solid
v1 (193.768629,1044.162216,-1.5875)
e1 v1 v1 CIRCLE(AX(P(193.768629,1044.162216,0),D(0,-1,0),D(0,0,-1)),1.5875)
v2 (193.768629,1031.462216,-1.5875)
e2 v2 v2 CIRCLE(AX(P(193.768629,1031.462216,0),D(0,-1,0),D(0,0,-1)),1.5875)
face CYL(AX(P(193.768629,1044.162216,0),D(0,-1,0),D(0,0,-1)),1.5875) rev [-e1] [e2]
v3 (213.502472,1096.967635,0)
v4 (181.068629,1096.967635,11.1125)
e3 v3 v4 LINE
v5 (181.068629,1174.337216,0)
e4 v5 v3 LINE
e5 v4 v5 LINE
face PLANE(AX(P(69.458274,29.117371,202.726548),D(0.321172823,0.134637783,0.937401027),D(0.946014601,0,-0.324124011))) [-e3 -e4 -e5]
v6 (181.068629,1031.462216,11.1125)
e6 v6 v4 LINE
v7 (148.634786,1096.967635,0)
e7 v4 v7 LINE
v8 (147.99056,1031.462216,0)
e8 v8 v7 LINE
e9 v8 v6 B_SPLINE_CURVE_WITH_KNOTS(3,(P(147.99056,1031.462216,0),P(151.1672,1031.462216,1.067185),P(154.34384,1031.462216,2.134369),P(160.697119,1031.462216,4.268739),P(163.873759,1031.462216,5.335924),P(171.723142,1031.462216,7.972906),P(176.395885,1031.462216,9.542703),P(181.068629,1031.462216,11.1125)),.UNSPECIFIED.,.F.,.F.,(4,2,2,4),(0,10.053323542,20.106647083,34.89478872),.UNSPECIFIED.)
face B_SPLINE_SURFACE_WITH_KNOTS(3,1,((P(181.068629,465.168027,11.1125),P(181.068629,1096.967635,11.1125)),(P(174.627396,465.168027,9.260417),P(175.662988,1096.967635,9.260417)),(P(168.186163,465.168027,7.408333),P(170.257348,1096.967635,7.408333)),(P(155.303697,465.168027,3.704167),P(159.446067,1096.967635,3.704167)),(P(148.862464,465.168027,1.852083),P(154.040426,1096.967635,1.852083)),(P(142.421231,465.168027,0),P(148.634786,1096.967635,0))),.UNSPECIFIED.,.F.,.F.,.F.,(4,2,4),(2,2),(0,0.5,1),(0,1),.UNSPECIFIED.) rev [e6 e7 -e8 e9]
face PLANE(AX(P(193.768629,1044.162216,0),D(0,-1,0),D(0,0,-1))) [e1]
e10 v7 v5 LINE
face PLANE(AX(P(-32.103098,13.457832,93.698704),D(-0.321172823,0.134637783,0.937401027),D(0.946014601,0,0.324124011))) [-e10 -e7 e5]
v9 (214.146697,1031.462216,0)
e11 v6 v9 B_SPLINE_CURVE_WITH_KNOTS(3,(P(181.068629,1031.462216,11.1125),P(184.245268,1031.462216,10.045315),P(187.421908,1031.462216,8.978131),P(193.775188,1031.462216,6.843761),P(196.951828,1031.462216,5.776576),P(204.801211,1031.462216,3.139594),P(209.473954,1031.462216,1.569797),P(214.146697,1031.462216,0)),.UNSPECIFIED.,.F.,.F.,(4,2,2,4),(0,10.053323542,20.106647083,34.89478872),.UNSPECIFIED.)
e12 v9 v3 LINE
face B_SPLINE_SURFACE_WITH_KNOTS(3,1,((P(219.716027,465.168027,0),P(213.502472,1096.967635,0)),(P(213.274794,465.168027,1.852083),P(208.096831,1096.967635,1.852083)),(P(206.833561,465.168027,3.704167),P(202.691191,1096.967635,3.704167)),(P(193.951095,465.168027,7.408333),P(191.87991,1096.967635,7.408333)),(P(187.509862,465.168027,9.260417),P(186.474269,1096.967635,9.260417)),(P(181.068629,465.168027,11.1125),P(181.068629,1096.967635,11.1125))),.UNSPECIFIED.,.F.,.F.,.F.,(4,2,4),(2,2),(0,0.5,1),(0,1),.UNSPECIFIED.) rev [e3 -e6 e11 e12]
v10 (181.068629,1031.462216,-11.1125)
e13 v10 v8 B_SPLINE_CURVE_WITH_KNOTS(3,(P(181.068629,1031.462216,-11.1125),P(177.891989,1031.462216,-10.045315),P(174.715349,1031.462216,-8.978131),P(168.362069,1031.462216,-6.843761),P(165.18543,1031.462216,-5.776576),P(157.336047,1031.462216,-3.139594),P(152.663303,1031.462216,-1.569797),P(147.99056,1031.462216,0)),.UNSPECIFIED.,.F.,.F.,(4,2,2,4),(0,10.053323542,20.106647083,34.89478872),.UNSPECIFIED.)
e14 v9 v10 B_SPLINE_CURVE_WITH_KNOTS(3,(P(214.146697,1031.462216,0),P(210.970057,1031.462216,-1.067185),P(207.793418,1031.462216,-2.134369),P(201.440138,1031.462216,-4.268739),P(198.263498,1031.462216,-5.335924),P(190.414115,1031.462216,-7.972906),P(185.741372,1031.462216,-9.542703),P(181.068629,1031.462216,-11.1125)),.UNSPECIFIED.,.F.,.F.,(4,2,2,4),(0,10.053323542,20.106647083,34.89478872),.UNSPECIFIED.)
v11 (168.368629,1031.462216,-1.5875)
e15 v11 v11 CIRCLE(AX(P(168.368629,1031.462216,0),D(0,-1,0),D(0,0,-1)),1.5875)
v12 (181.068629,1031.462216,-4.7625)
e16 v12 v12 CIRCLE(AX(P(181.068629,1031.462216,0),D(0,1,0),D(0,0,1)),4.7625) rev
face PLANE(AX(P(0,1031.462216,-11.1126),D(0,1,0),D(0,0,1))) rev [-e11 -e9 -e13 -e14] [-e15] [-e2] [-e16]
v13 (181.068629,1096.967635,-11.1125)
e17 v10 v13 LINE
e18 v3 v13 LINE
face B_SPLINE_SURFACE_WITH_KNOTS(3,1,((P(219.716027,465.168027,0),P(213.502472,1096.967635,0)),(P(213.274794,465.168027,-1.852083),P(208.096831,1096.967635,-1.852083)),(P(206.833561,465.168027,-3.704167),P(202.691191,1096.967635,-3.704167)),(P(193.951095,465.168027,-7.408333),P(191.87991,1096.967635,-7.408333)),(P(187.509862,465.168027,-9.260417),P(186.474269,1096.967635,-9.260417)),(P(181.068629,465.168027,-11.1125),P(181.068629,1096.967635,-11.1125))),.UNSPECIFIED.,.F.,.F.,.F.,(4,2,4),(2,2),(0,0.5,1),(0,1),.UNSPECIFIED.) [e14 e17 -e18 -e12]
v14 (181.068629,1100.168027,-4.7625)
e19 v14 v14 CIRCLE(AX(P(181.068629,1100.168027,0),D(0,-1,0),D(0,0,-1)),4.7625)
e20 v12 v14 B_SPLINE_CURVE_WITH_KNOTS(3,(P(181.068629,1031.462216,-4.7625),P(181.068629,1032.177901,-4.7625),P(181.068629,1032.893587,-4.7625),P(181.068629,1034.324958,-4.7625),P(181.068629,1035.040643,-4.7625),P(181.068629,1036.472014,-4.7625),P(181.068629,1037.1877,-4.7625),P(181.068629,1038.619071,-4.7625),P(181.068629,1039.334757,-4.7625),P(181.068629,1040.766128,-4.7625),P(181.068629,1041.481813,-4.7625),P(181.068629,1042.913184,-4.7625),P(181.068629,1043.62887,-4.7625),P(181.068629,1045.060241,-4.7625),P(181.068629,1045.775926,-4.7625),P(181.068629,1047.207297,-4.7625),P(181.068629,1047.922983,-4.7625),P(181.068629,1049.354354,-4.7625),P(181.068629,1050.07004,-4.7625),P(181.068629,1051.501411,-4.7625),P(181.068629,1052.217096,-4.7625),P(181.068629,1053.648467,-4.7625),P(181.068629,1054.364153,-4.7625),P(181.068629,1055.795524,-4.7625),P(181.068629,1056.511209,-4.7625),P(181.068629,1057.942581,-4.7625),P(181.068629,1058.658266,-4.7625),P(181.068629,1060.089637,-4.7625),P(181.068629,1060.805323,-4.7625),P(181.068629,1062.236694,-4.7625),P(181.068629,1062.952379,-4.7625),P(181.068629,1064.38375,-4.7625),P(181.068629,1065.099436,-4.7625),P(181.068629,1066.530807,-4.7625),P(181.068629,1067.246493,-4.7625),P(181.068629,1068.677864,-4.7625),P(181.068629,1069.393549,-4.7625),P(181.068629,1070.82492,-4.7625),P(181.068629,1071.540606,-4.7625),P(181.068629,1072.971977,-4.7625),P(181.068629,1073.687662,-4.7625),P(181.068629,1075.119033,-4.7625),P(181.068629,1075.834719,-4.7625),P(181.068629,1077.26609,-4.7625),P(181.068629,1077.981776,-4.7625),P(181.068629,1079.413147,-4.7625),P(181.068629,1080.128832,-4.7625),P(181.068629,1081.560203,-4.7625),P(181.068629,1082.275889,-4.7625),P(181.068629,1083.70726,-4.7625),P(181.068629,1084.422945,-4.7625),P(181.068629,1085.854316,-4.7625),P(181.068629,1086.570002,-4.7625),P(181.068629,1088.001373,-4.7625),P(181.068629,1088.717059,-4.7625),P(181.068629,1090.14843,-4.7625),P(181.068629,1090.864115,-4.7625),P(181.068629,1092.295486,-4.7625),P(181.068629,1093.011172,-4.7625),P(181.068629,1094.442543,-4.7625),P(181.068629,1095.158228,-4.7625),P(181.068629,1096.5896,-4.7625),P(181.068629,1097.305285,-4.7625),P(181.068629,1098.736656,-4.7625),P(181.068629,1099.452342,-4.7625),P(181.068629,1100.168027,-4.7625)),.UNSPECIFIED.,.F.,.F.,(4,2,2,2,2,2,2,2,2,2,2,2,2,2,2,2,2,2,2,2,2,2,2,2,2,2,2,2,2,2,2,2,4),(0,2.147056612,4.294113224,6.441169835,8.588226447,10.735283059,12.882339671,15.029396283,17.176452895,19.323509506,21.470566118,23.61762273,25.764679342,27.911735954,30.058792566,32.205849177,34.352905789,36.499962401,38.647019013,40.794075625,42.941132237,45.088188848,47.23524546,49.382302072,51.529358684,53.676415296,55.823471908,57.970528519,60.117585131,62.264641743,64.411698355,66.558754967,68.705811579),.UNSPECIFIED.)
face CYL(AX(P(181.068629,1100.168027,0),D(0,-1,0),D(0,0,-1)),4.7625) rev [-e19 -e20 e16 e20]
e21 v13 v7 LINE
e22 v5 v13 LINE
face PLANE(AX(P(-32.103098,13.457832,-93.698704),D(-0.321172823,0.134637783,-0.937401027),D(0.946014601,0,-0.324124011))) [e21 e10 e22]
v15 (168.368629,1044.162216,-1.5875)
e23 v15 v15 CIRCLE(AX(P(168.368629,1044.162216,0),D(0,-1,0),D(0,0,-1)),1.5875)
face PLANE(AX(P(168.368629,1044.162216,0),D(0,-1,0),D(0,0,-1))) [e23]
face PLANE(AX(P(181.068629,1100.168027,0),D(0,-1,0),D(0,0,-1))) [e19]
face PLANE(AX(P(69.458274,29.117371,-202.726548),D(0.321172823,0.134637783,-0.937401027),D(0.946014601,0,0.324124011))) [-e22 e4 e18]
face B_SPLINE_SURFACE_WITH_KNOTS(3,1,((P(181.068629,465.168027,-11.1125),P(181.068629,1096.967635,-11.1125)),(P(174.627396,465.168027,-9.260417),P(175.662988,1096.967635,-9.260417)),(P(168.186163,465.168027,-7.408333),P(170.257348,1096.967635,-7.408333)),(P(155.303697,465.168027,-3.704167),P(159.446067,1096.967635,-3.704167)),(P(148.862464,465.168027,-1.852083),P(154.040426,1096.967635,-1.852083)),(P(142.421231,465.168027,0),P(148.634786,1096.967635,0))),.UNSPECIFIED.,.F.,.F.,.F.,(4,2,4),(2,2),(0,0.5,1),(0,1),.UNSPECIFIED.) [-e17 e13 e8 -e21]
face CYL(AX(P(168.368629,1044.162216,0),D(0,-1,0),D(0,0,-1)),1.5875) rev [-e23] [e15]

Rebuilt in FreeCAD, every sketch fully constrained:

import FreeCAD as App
import Part
import Sketcher
from FreeCAD import Vector
Q = App.Units.Quantity

doc = App.newDocument("Part")
body = doc.addObject("PartDesign::Body", "Body")

# Sketch on XY plane
sketch1 = body.newObject("Sketcher::SketchObject", "Sketch")
sketch1.AttachmentSupport = (doc.getObject("XY_Plane"), [""])
sketch1.MapMode = "FlatFace"
sketch1.addGeometry(Part.LineSegment(Vector(142, 465, 0), Vector(220, 465, 0)), False)
sketch1.addGeometry(Part.LineSegment(Vector(220, 465, 0), Vector(214, 1097, 0)), False)
sketch1.addGeometry(Part.LineSegment(Vector(214, 1097, 0), Vector(181, 1174, 0)), False)
sketch1.addGeometry(Part.LineSegment(Vector(181, 1174, 0), Vector(149, 1097, 0)), False)
sketch1.addGeometry(Part.LineSegment(Vector(149, 1097, 0), Vector(142, 465, 0)), False)
sketch1.addConstraint(Sketcher.Constraint("Coincident", 0, 2, 1, 1))
sketch1.addConstraint(Sketcher.Constraint("Coincident", 1, 2, 2, 1))
sketch1.addConstraint(Sketcher.Constraint("Coincident", 2, 2, 3, 1))
sketch1.addConstraint(Sketcher.Constraint("Coincident", 3, 2, 4, 1))
sketch1.addConstraint(Sketcher.Constraint("Coincident", 4, 2, 0, 1))
sketch1.addConstraint(Sketcher.Constraint("Horizontal", 0))
sketch1.addConstraint(Sketcher.Constraint("Horizontal", 1, 2, 3, 2))
sketch1.addConstraint(Sketcher.Constraint("Equal", 2, 3))
sketch1.addConstraint(Sketcher.Constraint("Equal", 1, 4))
sketch1.addConstraint(Sketcher.Constraint("Distance", 1, 631.830161))
sketch1.addConstraint(Sketcher.Constraint("DistanceX", 0, 1, 0, 2, 77.294796))
sketch1.addConstraint(Sketcher.Constraint("DistanceX", -1, 1, 1, 2, 213.502472))
sketch1.addConstraint(Sketcher.Constraint("DistanceX", -1, 1, 2, 2, 181.068629))
sketch1.addConstraint(Sketcher.Constraint("DistanceY", 1, 2, 2, 2, 77.369581))
sketch1.addConstraint(Sketcher.Constraint("DistanceY", -1, 1, 0, 2, 465.168027))
pad1 = body.newObject("PartDesign::Pad", "Pad")
pad1.Profile = sketch1
pad1.Type = "TwoLengths"
pad1.Length = Q("0.4375 in")
pad1.Length2 = Q("0.4375 in")

# Sketch on XZ plane
sketch2 = body.newObject("Sketcher::SketchObject", "Sketch001")
sketch2.AttachmentSupport = (doc.getObject("XZ_Plane"), [""])
sketch2.MapMode = "FlatFace"
sketch2.AttachmentOffset = App.Placement(Vector(0, 0, -465.168027), App.Rotation())
sketch2.addGeometry(Part.LineSegment(Vector(142.4, 0, 0), Vector(181.1, 11.1, 0)), False)
sketch2.addGeometry(Part.LineSegment(Vector(181.1, 11.1, 0), Vector(219.7, 0, 0)), False)
sketch2.addGeometry(Part.LineSegment(Vector(219.7, 0, 0), Vector(222.7, 0, 0)), False)
sketch2.addGeometry(Part.LineSegment(Vector(222.7, 0, 0), Vector(222.7, 15.3, 0)), False)
sketch2.addGeometry(Part.LineSegment(Vector(222.7, 15.3, 0), Vector(137.8, 15.3, 0)), False)
sketch2.addGeometry(Part.LineSegment(Vector(137.8, 15.3, 0), Vector(137.8, 0, 0)), False)
sketch2.addGeometry(Part.LineSegment(Vector(137.8, 0, 0), Vector(142.4, 0, 0)), False)
sketch2.addConstraint(Sketcher.Constraint("Coincident", 0, 2, 1, 1))
sketch2.addConstraint(Sketcher.Constraint("Coincident", 1, 2, 2, 1))
sketch2.addConstraint(Sketcher.Constraint("Coincident", 2, 2, 3, 1))
sketch2.addConstraint(Sketcher.Constraint("Coincident", 3, 2, 4, 1))
sketch2.addConstraint(Sketcher.Constraint("Coincident", 4, 2, 5, 1))
sketch2.addConstraint(Sketcher.Constraint("Coincident", 5, 2, 6, 1))
sketch2.addConstraint(Sketcher.Constraint("Coincident", 6, 2, 0, 1))
sketch2.addConstraint(Sketcher.Constraint("Horizontal", 2))
sketch2.addConstraint(Sketcher.Constraint("Vertical", 3))
sketch2.addConstraint(Sketcher.Constraint("Horizontal", 4))
sketch2.addConstraint(Sketcher.Constraint("Vertical", 5))
sketch2.addConstraint(Sketcher.Constraint("Horizontal", 6))
sketch2.addConstraint(Sketcher.Constraint("PointOnObject", 1, 2, -1))
sketch2.addConstraint(Sketcher.Constraint("PointOnObject", 5, 2, -1))
sketch2.addConstraint(Sketcher.Constraint("Equal", 0, 1))
sketch2.addConstraint(Sketcher.Constraint("DistanceY", -1, 1, 0, 2, Q("0.4375 in")))
sketch2.addConstraint(Sketcher.Constraint("DistanceX", 2, 1, 2, 2, 2.989111))
sketch2.addConstraint(Sketcher.Constraint("DistanceX", 4, 2, 4, 1, 84.85651))
sketch2.addConstraint(Sketcher.Constraint("DistanceX", 4, 2, 0, 2, 43.22))
sketch2.addConstraint(Sketcher.Constraint("DistanceY", 3, 1, 3, 2, 15.258366))
sketch2.addConstraint(Sketcher.Constraint("DistanceX", -1, 1, 0, 2, 181.068629))

# Sketch on XZ plane
sketch3 = body.newObject("Sketcher::SketchObject", "Sketch002")
sketch3.AttachmentSupport = (doc.getObject("XZ_Plane"), [""])
sketch3.MapMode = "FlatFace"
sketch3.AttachmentOffset = App.Placement(Vector(0, 0, -1096.967635), App.Rotation())
sketch3.addGeometry(Part.LineSegment(Vector(214, 0, 0), Vector(181, 11, 0)), False)
sketch3.addGeometry(Part.LineSegment(Vector(181, 11, 0), Vector(149, 0, 0)), False)
sketch3.addGeometry(Part.LineSegment(Vector(149, 0, 0), Vector(138, 0, 0)), False)
sketch3.addGeometry(Part.LineSegment(Vector(138, 0, 0), Vector(138, 15, 0)), False)
sketch3.addGeometry(Part.LineSegment(Vector(138, 15, 0), Vector(223, 15, 0)), False)
sketch3.addGeometry(Part.LineSegment(Vector(223, 15, 0), Vector(223, 0, 0)), False)
sketch3.addGeometry(Part.LineSegment(Vector(223, 0, 0), Vector(214, 0, 0)), False)
sketch3.addConstraint(Sketcher.Constraint("Coincident", 0, 2, 1, 1))
sketch3.addConstraint(Sketcher.Constraint("Coincident", 1, 2, 2, 1))
sketch3.addConstraint(Sketcher.Constraint("Coincident", 2, 2, 3, 1))
sketch3.addConstraint(Sketcher.Constraint("Coincident", 3, 2, 4, 1))
sketch3.addConstraint(Sketcher.Constraint("Coincident", 4, 2, 5, 1))
sketch3.addConstraint(Sketcher.Constraint("Coincident", 5, 2, 6, 1))
sketch3.addConstraint(Sketcher.Constraint("Coincident", 6, 2, 0, 1))
sketch3.addConstraint(Sketcher.Constraint("Horizontal", 2))
sketch3.addConstraint(Sketcher.Constraint("Vertical", 3))
sketch3.addConstraint(Sketcher.Constraint("Horizontal", 4))
sketch3.addConstraint(Sketcher.Constraint("Vertical", 5))
sketch3.addConstraint(Sketcher.Constraint("Horizontal", 6))
sketch3.addConstraint(Sketcher.Constraint("PointOnObject", 1, 2, -1))
sketch3.addConstraint(Sketcher.Constraint("PointOnObject", 5, 2, -1))
sketch3.addConstraint(Sketcher.Constraint("Equal", 0, 1))
sketch3.addConstraint(Sketcher.Constraint("DistanceY", -1, 1, 0, 2, Q("0.4375 in")))
sketch3.addConstraint(Sketcher.Constraint("DistanceX", 4, 1, 4, 2, 84.85651))
sketch3.addConstraint(Sketcher.Constraint("DistanceX", 2, 2, 0, 2, 43.22))
sketch3.addConstraint(Sketcher.Constraint("DistanceX", 2, 2, 2, 1, 10.786158))
sketch3.addConstraint(Sketcher.Constraint("DistanceY", 3, 1, 3, 2, 15.258366))
sketch3.addConstraint(Sketcher.Constraint("DistanceX", -1, 1, 0, 2, 181.068629))

subtractiveloft = body.newObject("PartDesign::SubtractiveLoft", "SubtractiveLoft")
subtractiveloft.Profile = sketch2
subtractiveloft.Sections = [sketch3]
doc.recompute()

mirrored = body.newObject("PartDesign::Mirrored", "Mirrored")
mirrored.Originals = [subtractiveloft]
mirrored.MirrorPlane = (doc.getObject("XY_Plane"), [""])
body.Tip = mirrored

# Sketch on an angled plane
sketch4 = body.newObject("Sketcher::SketchObject", "Sketch003")
sketch4.Placement = App.Placement(Vector(-32.103098, 13.457832, 93.698704), App.Rotation(Vector(0.9470206, 0.045661094, 0.317910438), Vector(0, 0.989842276, -0.142169857), Vector(-0.321172823, 0.134637783, 0.937401027), "ZXY"))
sketch4.addGeometry(Part.LineSegment(Vector(164, 1281, 0), Vector(164, 998, 0)), False)
sketch4.addGeometry(Part.LineSegment(Vector(164, 998, 0), Vector(274, 998, 0)), False)
sketch4.addGeometry(Part.LineSegment(Vector(274, 998, 0), Vector(274, 1281, 0)), False)
sketch4.addGeometry(Part.LineSegment(Vector(274, 1281, 0), Vector(164, 1281, 0)), False)
sketch4.addConstraint(Sketcher.Constraint("Coincident", 0, 2, 1, 1))
sketch4.addConstraint(Sketcher.Constraint("Coincident", 1, 2, 2, 1))
sketch4.addConstraint(Sketcher.Constraint("Coincident", 2, 2, 3, 1))
sketch4.addConstraint(Sketcher.Constraint("Coincident", 3, 2, 0, 1))
sketch4.addConstraint(Sketcher.Constraint("Vertical", 0))
sketch4.addConstraint(Sketcher.Constraint("Horizontal", 1))
sketch4.addConstraint(Sketcher.Constraint("Vertical", 2))
sketch4.addConstraint(Sketcher.Constraint("Horizontal", 3))
sketch4.addConstraint(Sketcher.Constraint("DistanceX", 1, 1, 1, 2, 109.877469))
sketch4.addConstraint(Sketcher.Constraint("DistanceY", 0, 2, 0, 1, 283.051122))
sketch4.addConstraint(Sketcher.Constraint("DistanceX", -1, 1, 0, 2, 164.41051))
sketch4.addConstraint(Sketcher.Constraint("DistanceY", -1, 1, 0, 2, 997.778163))
pocket1 = body.newObject("PartDesign::Pocket", "Pocket")
pocket1.Profile = sketch4
pocket1.Type = "ThroughAll"
pocket1.Reversed = True

# Sketch on an angled plane
sketch5 = body.newObject("Sketcher::SketchObject", "Sketch004")
sketch5.Placement = App.Placement(Vector(69.458274, 29.117371, 202.726548), App.Rotation(Vector(0.9470206, -0.045661094, -0.317910438), Vector(0, 0.989842276, -0.142169857), Vector(0.321172823, 0.134637783, 0.937401027), "ZXY"))
sketch5.addGeometry(Part.LineSegment(Vector(57, 1173, 0), Vector(57, 1064, 0)), False)
sketch5.addGeometry(Part.LineSegment(Vector(57, 1064, 0), Vector(206, 1064, 0)), False)
sketch5.addGeometry(Part.LineSegment(Vector(206, 1064, 0), Vector(206, 1173, 0)), False)
sketch5.addGeometry(Part.LineSegment(Vector(206, 1173, 0), Vector(57, 1173, 0)), False)
sketch5.addConstraint(Sketcher.Constraint("Coincident", 0, 2, 1, 1))
sketch5.addConstraint(Sketcher.Constraint("Coincident", 1, 2, 2, 1))
sketch5.addConstraint(Sketcher.Constraint("Coincident", 2, 2, 3, 1))
sketch5.addConstraint(Sketcher.Constraint("Coincident", 3, 2, 0, 1))
sketch5.addConstraint(Sketcher.Constraint("Vertical", 0))
sketch5.addConstraint(Sketcher.Constraint("Horizontal", 1))
sketch5.addConstraint(Sketcher.Constraint("Vertical", 2))
sketch5.addConstraint(Sketcher.Constraint("Horizontal", 3))
sketch5.addConstraint(Sketcher.Constraint("DistanceY", 0, 2, 0, 1, 108.921762))
sketch5.addConstraint(Sketcher.Constraint("DistanceX", 1, 1, 1, 2, 149.121483))
sketch5.addConstraint(Sketcher.Constraint("DistanceY", -1, 1, 0, 2, 1064.46137))
sketch5.addConstraint(Sketcher.Constraint("DistanceX", -1, 1, 1, 2, 206.313558))
pocket2 = body.newObject("PartDesign::Pocket", "Pocket001")
pocket2.Profile = sketch5
pocket2.Type = "ThroughAll"
pocket2.Reversed = True
doc.recompute()

mirrored2 = body.newObject("PartDesign::Mirrored", "Mirrored001")
mirrored2.Originals = [pocket1, pocket2]
mirrored2.MirrorPlane = (doc.getObject("XY_Plane"), [""])
body.Tip = mirrored2

# Sketch on XZ plane
sketch6 = body.newObject("Sketcher::SketchObject", "Sketch005")
sketch6.AttachmentSupport = (doc.getObject("XZ_Plane"), [""])
sketch6.MapMode = "FlatFace"
sketch6.AttachmentOffset = App.Placement(Vector(0, 0, -465.168027), App.Rotation())
sketch6.addGeometry(Part.Circle(Vector(181.1, 0, 0), Vector(0, 0, 1), 4.8), False)
sketch6.addConstraint(Sketcher.Constraint("PointOnObject", 0, 3, -1))
sketch6.addConstraint(Sketcher.Constraint("Diameter", 0, Q("0.375 in")))
sketch6.addConstraint(Sketcher.Constraint("DistanceX", -1, 1, 0, 3, 181.068629))
pocket3 = body.newObject("PartDesign::Pocket", "Pocket002")
pocket3.Profile = sketch6
pocket3.Length = Q("25 in")

# Sketch on XY plane
sketch7 = body.newObject("Sketcher::SketchObject", "Sketch006")
sketch7.AttachmentSupport = (doc.getObject("XY_Plane"), [""])
sketch7.MapMode = "FlatFace"
sketch7.addGeometry(Part.LineSegment(Vector(106, 454, 0), Vector(255, 454, 0)), False)
sketch7.addGeometry(Part.LineSegment(Vector(255, 454, 0), Vector(255, 1031, 0)), False)
sketch7.addGeometry(Part.LineSegment(Vector(255, 1031, 0), Vector(106, 1031, 0)), False)
sketch7.addGeometry(Part.LineSegment(Vector(106, 1031, 0), Vector(106, 454, 0)), False)
sketch7.addConstraint(Sketcher.Constraint("Coincident", 0, 2, 1, 1))
sketch7.addConstraint(Sketcher.Constraint("Coincident", 1, 2, 2, 1))
sketch7.addConstraint(Sketcher.Constraint("Coincident", 2, 2, 3, 1))
sketch7.addConstraint(Sketcher.Constraint("Coincident", 3, 2, 0, 1))
sketch7.addConstraint(Sketcher.Constraint("Horizontal", 0))
sketch7.addConstraint(Sketcher.Constraint("Vertical", 1))
sketch7.addConstraint(Sketcher.Constraint("Horizontal", 2))
sketch7.addConstraint(Sketcher.Constraint("Vertical", 3))
sketch7.addConstraint(Sketcher.Constraint("DistanceX", 0, 1, 0, 2, 149.77475))
sketch7.addConstraint(Sketcher.Constraint("DistanceY", 1, 1, 1, 2, 577.457771))
sketch7.addConstraint(Sketcher.Constraint("DistanceX", -1, 1, 0, 2, 255.485014))
sketch7.addConstraint(Sketcher.Constraint("DistanceY", -1, 1, 0, 2, 454.004445))
pocket4 = body.newObject("PartDesign::Pocket", "Pocket003")
pocket4.Profile = sketch7
pocket4.Type = "ThroughAll"
pocket4.Midplane = True

# Sketch on XZ plane
sketch8 = body.newObject("Sketcher::SketchObject", "Sketch007")
sketch8.AttachmentSupport = (doc.getObject("XZ_Plane"), [""])
sketch8.MapMode = "FlatFace"
sketch8.AttachmentOffset = App.Placement(Vector(0, 0, -1031.462216), App.Rotation())
sketch8.addGeometry(Part.Circle(Vector(168.4, 0, 0), Vector(0, 0, 1), 1.6), False)
sketch8.addGeometry(Part.Circle(Vector(193.8, 0, 0), Vector(0, 0, 1), 1.6), False)
sketch8.addConstraint(Sketcher.Constraint("Equal", 0, 1))
sketch8.addConstraint(Sketcher.Constraint("PointOnObject", 0, 3, -1))
sketch8.addConstraint(Sketcher.Constraint("PointOnObject", 1, 3, -1))
sketch8.addConstraint(Sketcher.Constraint("Diameter", 0, Q("0.125 in")))
sketch8.addConstraint(Sketcher.Constraint("DistanceX", 0, 3, 1, 3, Q("1 in")))
sketch8.addConstraint(Sketcher.Constraint("DistanceX", -1, 1, 0, 3, 168.368629))
pocket5 = body.newObject("PartDesign::Pocket", "Pocket004")
pocket5.Profile = sketch8
pocket5.Length = Q("0.5 in")

doc.recompute()
